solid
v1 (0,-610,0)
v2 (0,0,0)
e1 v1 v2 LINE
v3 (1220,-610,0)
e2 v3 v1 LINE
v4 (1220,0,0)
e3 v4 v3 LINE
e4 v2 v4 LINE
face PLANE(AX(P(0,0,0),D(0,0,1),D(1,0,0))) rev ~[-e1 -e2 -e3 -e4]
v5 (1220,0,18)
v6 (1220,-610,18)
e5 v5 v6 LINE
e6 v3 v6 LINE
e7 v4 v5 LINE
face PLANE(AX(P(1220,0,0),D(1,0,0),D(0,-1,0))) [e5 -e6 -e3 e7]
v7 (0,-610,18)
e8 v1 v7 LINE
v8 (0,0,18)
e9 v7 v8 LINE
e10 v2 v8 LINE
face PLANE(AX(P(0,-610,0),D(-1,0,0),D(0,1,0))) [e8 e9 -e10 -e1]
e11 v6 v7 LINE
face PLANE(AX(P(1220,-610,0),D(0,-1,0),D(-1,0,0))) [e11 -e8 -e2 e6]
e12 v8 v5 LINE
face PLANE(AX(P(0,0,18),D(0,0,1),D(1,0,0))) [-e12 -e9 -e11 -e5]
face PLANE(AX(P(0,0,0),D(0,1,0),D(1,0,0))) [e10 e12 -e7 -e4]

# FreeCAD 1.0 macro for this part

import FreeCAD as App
import Part
import Sketcher
from FreeCAD import Vector


def add_polygon(sketch, points):
    """Adds a closed chain of lines whose ends are joined by coincident constraints."""
    first, n = sketch.GeometryCount, len(points)
    for a, b in zip(points, points[1:] + points[:1]):
        sketch.addGeometry(Part.LineSegment(App.Vector(*a, 0), App.Vector(*b, 0)), False)
    for i in range(n):
        sketch.addConstraint(Sketcher.Constraint("Coincident", first + i, 2, first + (i + 1) % n, 1))

doc = App.newDocument("Part")
body = doc.addObject("PartDesign::Body", "Body")

sketch1 = doc.addObject("Sketcher::SketchObject", "Sketch")
body.addObject(sketch1)
sketch1.AttachmentSupport = (doc.XY_Plane, [""])
sketch1.MapMode = "FlatFace"
add_polygon(sketch1, [(1220, 0), (0, 0), (0, -610), (1220, -610)])
sketch1.addConstraint(Sketcher.Constraint("Horizontal", 0))
sketch1.addConstraint(Sketcher.Constraint("Vertical", 1))
sketch1.addConstraint(Sketcher.Constraint("Horizontal", 2))
sketch1.addConstraint(Sketcher.Constraint("Vertical", 3))
sketch1.addConstraint(Sketcher.Constraint("Coincident", 0, 2, -1, 1))
sketch1.addConstraint(Sketcher.Constraint("DistanceX", 0, 2, 0, 1, 1220.0))
sketch1.addConstraint(Sketcher.Constraint("DistanceY", 1, 2, 1, 1, 610.0))
pad1 = doc.addObject("PartDesign::Pad", "Pad")
body.addObject(pad1)
pad1.Profile = sketch1
pad1.Length = 18

doc.recompute()
